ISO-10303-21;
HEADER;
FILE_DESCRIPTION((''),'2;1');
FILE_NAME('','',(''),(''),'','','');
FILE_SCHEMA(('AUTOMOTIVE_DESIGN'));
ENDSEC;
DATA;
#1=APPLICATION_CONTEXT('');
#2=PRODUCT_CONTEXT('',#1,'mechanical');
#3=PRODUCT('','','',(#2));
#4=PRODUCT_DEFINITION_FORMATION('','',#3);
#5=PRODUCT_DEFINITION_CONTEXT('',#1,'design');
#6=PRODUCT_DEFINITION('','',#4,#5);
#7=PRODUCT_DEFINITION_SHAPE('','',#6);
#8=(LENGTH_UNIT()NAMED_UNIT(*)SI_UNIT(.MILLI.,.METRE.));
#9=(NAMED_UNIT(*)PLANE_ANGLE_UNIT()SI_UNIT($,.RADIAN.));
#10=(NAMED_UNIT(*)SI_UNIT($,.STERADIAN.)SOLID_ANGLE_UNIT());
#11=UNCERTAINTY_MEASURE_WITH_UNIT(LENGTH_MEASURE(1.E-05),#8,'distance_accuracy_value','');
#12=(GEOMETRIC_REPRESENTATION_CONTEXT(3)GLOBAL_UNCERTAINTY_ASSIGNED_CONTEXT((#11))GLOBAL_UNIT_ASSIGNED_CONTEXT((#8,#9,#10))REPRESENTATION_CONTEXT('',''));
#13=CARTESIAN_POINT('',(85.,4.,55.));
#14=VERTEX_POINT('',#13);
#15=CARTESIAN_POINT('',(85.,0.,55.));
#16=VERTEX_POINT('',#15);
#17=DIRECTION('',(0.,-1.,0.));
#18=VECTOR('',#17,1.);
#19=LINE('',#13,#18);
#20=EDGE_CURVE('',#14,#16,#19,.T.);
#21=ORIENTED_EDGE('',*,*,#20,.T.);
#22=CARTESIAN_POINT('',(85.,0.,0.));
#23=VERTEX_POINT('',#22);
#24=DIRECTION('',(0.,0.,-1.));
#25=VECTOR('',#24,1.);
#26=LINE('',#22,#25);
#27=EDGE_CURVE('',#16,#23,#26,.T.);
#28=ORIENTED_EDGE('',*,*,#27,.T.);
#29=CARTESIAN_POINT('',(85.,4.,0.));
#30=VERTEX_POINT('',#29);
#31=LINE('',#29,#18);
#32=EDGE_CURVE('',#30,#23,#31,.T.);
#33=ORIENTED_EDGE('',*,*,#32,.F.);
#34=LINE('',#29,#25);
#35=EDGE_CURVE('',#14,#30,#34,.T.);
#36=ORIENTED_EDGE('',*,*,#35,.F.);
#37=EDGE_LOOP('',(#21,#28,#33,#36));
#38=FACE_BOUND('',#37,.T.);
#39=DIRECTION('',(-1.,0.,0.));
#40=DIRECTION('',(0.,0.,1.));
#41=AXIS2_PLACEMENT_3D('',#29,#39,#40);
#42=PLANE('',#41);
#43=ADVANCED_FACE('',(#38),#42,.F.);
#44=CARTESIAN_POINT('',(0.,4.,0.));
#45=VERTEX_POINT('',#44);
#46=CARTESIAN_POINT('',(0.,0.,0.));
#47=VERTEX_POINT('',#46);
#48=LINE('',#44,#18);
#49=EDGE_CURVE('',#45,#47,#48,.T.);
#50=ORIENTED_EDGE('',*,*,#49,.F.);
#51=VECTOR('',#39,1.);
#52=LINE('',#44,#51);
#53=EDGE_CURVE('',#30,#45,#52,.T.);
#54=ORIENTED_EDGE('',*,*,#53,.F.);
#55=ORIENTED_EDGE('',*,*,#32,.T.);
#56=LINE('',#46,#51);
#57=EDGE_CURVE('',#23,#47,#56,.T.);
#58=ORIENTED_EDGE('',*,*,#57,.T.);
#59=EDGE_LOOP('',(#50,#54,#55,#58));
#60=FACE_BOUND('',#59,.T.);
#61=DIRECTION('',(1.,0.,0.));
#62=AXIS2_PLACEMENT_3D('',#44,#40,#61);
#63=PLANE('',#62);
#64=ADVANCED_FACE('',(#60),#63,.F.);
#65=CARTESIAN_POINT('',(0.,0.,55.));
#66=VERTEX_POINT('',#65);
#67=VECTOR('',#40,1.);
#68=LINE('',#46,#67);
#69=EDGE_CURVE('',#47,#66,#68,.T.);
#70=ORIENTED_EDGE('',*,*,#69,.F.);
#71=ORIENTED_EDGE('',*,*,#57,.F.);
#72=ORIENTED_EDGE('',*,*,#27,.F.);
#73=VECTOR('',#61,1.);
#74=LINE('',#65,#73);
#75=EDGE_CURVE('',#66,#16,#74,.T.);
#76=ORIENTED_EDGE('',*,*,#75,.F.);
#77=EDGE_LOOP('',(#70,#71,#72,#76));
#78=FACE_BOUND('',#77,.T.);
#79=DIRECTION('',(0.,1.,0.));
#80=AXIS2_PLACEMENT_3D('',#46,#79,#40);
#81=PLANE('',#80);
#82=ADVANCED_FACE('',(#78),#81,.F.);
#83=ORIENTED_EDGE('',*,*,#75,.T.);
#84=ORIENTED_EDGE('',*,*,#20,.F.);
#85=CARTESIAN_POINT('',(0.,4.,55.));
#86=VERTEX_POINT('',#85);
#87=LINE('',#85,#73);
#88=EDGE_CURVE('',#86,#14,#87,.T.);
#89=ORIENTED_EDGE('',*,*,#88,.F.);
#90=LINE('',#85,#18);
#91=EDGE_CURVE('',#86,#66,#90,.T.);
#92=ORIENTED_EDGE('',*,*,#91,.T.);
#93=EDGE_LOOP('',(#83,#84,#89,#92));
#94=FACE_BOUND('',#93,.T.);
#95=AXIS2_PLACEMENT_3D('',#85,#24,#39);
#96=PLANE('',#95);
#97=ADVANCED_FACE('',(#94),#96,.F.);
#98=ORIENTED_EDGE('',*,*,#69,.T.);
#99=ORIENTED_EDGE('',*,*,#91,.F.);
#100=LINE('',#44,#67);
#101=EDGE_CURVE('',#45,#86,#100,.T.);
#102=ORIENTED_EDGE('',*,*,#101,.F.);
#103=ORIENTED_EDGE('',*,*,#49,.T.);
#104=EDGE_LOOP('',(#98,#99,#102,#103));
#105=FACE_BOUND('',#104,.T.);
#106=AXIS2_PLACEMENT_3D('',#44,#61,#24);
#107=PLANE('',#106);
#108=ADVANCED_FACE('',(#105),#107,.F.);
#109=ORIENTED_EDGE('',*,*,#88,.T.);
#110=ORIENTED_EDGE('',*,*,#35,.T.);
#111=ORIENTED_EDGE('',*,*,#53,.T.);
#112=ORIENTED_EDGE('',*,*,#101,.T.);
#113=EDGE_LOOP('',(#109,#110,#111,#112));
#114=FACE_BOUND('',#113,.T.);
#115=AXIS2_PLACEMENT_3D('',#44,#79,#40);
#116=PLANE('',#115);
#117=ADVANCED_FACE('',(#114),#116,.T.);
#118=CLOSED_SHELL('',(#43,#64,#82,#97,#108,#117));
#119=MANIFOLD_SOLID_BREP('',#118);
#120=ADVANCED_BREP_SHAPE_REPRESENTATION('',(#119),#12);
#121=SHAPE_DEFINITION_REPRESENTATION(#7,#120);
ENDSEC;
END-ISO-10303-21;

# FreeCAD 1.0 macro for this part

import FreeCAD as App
import Part
import Sketcher


def add_polygon(sketch, points):
    """Adds a closed chain of lines whose ends are joined by coincident constraints."""
    first, n = sketch.GeometryCount, len(points)
    for a, b in zip(points, points[1:] + points[:1]):
        sketch.addGeometry(Part.LineSegment(App.Vector(*a, 0), App.Vector(*b, 0)), False)
    for i in range(n):
        sketch.addConstraint(Sketcher.Constraint("Coincident", first + i, 2, first + (i + 1) % n, 1))

doc = App.newDocument("Part")
body = doc.addObject("PartDesign::Body", "Body")

# Sketch on XZ plane
sketch1 = body.newObject("Sketcher::SketchObject", "Sketch")
sketch1.AttachmentSupport = (doc.getObject("XZ_Plane"), [""])
sketch1.MapMode = "FlatFace"
add_polygon(sketch1, [(0, 0), (0, 55), (85, 55), (85, 0)])  # lines 0-3
sketch1.addConstraint(Sketcher.Constraint("Vertical", 0))
sketch1.addConstraint(Sketcher.Constraint("Horizontal", 1))
sketch1.addConstraint(Sketcher.Constraint("Vertical", 2))
sketch1.addConstraint(Sketcher.Constraint("Horizontal", 3))
sketch1.addConstraint(Sketcher.Constraint("Coincident", 3, 2, -1, 1))
sketch1.addConstraint(Sketcher.Constraint("DistanceX", 1, 1, 1, 2, 85.0))
sketch1.addConstraint(Sketcher.Constraint("DistanceY", 0, 1, 0, 2, 55.0))
pad1 = body.newObject("PartDesign::Pad", "Pad")
pad1.Profile = sketch1
pad1.Length = 4
pad1.Reversed = True

doc.recompute()
